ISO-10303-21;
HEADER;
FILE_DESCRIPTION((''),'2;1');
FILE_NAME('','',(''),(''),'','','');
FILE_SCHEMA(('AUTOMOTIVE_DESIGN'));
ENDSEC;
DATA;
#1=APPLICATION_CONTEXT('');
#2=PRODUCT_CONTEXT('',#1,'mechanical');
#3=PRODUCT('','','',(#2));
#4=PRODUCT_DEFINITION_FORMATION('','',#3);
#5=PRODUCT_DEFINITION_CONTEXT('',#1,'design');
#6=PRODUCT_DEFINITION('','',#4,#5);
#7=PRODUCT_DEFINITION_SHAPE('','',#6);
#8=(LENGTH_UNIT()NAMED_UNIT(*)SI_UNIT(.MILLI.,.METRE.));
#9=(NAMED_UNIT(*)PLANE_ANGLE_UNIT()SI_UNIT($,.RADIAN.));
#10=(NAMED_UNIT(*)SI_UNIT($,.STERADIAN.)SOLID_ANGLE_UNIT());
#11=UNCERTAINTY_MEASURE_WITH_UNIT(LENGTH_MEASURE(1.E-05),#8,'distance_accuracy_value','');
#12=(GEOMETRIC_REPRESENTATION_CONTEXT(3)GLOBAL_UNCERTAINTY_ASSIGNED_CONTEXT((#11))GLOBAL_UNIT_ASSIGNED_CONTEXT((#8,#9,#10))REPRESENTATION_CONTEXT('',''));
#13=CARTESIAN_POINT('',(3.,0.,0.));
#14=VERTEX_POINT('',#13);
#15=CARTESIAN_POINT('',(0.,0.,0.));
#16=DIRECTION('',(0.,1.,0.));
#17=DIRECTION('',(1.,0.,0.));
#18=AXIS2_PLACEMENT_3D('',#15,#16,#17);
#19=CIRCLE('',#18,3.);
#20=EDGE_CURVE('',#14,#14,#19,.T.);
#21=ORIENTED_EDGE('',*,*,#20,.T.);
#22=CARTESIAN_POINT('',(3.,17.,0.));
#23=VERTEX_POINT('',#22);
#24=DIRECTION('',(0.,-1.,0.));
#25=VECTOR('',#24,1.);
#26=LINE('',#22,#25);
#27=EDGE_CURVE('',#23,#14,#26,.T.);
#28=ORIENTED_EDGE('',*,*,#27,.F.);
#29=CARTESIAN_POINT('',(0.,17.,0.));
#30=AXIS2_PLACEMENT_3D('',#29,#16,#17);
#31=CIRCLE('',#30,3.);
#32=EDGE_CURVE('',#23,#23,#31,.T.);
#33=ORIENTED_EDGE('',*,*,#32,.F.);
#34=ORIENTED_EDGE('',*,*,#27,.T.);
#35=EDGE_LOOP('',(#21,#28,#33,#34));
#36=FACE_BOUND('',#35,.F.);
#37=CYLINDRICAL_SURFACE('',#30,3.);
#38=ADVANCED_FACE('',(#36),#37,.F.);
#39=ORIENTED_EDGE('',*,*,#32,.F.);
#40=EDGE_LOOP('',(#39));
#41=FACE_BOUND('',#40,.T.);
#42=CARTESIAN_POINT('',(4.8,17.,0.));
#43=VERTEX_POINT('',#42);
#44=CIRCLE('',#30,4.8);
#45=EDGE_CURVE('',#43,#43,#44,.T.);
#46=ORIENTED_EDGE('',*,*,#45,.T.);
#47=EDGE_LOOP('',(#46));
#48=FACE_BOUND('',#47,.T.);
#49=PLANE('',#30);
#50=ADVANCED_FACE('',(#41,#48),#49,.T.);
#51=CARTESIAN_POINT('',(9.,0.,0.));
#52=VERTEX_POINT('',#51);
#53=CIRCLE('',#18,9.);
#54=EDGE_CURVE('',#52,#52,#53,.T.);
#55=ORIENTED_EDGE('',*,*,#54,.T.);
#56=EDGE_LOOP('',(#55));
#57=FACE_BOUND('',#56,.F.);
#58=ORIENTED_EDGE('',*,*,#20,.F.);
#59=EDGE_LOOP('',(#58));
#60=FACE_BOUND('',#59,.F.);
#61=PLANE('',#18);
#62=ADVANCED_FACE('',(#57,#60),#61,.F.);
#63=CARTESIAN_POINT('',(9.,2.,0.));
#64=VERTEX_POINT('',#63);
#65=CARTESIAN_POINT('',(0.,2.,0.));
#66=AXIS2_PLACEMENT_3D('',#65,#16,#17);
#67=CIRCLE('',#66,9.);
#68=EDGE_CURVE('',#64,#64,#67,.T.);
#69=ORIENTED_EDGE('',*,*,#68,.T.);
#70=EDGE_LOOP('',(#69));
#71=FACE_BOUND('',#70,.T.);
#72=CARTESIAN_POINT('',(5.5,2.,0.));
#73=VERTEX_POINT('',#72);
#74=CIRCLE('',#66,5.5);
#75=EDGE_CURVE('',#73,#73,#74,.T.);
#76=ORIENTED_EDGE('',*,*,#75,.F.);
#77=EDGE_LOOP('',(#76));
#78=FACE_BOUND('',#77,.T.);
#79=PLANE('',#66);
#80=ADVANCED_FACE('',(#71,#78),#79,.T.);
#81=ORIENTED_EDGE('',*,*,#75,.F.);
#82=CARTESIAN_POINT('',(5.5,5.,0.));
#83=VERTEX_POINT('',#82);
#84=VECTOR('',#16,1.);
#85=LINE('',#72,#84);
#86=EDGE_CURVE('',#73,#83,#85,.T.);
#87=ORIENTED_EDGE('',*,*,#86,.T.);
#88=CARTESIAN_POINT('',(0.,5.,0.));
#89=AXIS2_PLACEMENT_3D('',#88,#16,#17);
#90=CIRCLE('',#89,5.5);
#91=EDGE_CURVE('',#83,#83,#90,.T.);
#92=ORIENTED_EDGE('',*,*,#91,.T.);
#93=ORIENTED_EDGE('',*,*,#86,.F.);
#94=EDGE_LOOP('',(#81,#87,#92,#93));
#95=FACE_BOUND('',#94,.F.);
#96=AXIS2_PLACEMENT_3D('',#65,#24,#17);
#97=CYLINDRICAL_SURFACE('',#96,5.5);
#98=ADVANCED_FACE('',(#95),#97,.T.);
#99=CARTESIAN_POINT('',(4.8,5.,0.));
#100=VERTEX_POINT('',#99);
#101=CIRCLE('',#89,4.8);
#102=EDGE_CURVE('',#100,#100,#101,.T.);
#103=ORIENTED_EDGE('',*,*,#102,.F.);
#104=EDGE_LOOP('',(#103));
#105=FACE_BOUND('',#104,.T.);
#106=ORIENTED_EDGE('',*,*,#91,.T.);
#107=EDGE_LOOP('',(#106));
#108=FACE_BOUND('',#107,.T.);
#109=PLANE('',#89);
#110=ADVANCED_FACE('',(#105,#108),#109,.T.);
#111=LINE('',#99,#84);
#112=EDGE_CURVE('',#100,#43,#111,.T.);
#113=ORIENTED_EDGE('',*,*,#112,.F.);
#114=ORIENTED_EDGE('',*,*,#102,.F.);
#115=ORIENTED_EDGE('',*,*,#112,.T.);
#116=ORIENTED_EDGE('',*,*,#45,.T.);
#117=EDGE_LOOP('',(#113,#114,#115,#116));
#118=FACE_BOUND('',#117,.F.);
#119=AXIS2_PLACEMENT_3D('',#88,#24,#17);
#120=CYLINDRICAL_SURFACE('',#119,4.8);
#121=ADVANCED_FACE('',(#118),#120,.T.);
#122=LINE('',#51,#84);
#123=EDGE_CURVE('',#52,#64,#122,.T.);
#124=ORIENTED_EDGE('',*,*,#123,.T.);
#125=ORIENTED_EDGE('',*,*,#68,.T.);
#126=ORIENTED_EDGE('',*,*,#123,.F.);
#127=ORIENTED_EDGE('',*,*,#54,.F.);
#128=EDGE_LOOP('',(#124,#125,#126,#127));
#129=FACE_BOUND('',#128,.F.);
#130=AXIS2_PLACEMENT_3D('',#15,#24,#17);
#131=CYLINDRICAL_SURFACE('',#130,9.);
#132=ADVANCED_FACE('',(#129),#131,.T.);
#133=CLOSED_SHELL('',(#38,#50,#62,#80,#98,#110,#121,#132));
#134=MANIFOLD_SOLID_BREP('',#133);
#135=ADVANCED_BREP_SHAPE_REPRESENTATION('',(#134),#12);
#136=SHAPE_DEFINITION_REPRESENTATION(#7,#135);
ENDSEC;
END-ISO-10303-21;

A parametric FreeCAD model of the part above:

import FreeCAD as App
import Part
import Sketcher
Q = App.Units.Quantity

doc = App.newDocument("Part")
params = doc.addObject("Spreadsheet::Sheet", "Params")
for row, (alias, value) in enumerate([
    ("sketch1_diameter", "18 mm"),
    ("pad1_length", "2 mm"),
    ("sketch2_diameter", "11 mm"),
    ("pad2_length", "3 mm"),
    ("sketch3_diameter", "9.6 mm"),
    ("pad3_length", "12 mm"),
    ("sketch4_diameter", "6 mm"),
], start=1):
    params.set(f"A{row}", alias)
    params.set(f"B{row}", "=" + value)
    params.setAlias(f"B{row}", alias)

body = doc.addObject("PartDesign::Body", "Body")

sketch1 = doc.addObject("Sketcher::SketchObject", "Sketch")
body.addObject(sketch1)
sketch1.AttachmentSupport = (doc.XZ_Plane, [""])
sketch1.MapMode = "FlatFace"
sketch1.addGeometry(Part.Circle(App.Vector(0, 0, 0), App.Vector(0, 0, 1), 9), False)
sketch1.addConstraint([
    Sketcher.Constraint("Coincident", 0, 3, -1, 1),
    Sketcher.Constraint("Diameter", 0, Q("18 mm")),
])
sketch1.setExpression("Constraints[1]", "Params.sketch1_diameter")
pad1 = doc.addObject("PartDesign::Pad", "Pad")
body.addObject(pad1)
pad1.Profile = sketch1
pad1.setExpression("Length", "Params.pad1_length")
pad1.Reversed = True

sketch2 = doc.addObject("Sketcher::SketchObject", "Sketch001")
body.addObject(sketch2)
sketch2.AttachmentSupport = (doc.XZ_Plane, [""])
sketch2.MapMode = "FlatFace"
sketch2.AttachmentOffset = App.Placement(App.Vector(0, 0, -2), App.Rotation())
sketch2.addGeometry(Part.Circle(App.Vector(0, 0, 0), App.Vector(0, 0, 1), 6), False)
sketch2.addConstraint([
    Sketcher.Constraint("Coincident", 0, 3, -1, 1),
    Sketcher.Constraint("Diameter", 0, Q("11 mm")),
])
sketch2.setExpression("Constraints[1]", "Params.sketch2_diameter")
pad2 = doc.addObject("PartDesign::Pad", "Pad001")
body.addObject(pad2)
pad2.Profile = sketch2
pad2.setExpression("Length", "Params.pad2_length")
pad2.Reversed = True

sketch3 = doc.addObject("Sketcher::SketchObject", "Sketch002")
body.addObject(sketch3)
sketch3.AttachmentSupport = (doc.XZ_Plane, [""])
sketch3.MapMode = "FlatFace"
sketch3.AttachmentOffset = App.Placement(App.Vector(0, 0, -5), App.Rotation())
sketch3.addGeometry(Part.Circle(App.Vector(0, 0, 0), App.Vector(0, 0, 1), 4.8), False)
sketch3.addConstraint([
    Sketcher.Constraint("Coincident", 0, 3, -1, 1),
    Sketcher.Constraint("Diameter", 0, Q("9.6 mm")),
])
sketch3.setExpression("Constraints[1]", "Params.sketch3_diameter")
pad3 = doc.addObject("PartDesign::Pad", "Pad002")
body.addObject(pad3)
pad3.Profile = sketch3
pad3.setExpression("Length", "Params.pad3_length")
pad3.Reversed = True

sketch4 = doc.addObject("Sketcher::SketchObject", "Sketch003")
body.addObject(sketch4)
sketch4.AttachmentSupport = (doc.XZ_Plane, [""])
sketch4.MapMode = "FlatFace"
sketch4.AttachmentOffset = App.Placement(App.Vector(0, 0, -17), App.Rotation())
sketch4.addGeometry(Part.Circle(App.Vector(0, 0, 0), App.Vector(0, 0, 1), 3), False)
sketch4.addConstraint([
    Sketcher.Constraint("Coincident", 0, 3, -1, 1),
    Sketcher.Constraint("Diameter", 0, Q("6 mm")),
])
sketch4.setExpression("Constraints[1]", "Params.sketch4_diameter")
pocket1 = doc.addObject("PartDesign::Pocket", "Pocket")
body.addObject(pocket1)
pocket1.Profile = sketch4
pocket1.Type = "ThroughAll"
pocket1.Reversed = True

doc.recompute()
